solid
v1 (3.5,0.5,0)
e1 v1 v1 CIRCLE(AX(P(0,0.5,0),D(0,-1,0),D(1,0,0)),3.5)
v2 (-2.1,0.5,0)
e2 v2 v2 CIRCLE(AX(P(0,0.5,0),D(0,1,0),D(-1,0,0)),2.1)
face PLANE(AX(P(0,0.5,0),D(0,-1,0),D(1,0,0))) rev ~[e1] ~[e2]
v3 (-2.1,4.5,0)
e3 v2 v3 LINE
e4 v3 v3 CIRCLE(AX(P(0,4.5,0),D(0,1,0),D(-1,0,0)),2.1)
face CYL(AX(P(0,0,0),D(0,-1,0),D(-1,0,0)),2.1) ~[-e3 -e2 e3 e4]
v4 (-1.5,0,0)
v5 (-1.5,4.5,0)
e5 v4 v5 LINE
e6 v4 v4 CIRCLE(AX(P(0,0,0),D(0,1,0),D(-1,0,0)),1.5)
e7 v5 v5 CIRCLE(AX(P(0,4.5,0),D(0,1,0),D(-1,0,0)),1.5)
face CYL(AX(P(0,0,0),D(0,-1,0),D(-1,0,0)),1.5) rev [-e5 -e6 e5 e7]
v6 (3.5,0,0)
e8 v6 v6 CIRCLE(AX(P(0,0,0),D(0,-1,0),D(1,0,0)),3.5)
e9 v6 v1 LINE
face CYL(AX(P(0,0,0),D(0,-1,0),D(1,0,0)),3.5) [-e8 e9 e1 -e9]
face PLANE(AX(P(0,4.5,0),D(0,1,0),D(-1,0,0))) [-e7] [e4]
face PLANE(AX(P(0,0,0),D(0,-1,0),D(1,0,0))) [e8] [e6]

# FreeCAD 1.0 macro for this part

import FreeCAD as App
import Part
import Sketcher
Q = App.Units.Quantity

doc = App.newDocument("Part")
body = doc.addObject("PartDesign::Body", "Body")

sketch1 = body.newObject("Sketcher::SketchObject", "Sketch")
sketch1.AttachmentSupport = (doc.getObject("XZ_Plane"), [""])
sketch1.MapMode = "FlatFace"
sketch1.addGeometry(Part.Circle(App.Vector(0, 0, 0), App.Vector(0, 0, 1), 2.1), False)
sketch1.addGeometry(Part.Circle(App.Vector(0, 0, 0), App.Vector(0, 0, 1), 1.5), False)
sketch1.addConstraint(Sketcher.Constraint("Coincident", 0, 3, -1, 1))
sketch1.addConstraint(Sketcher.Constraint("Coincident", 1, 3, -1, 1))
sketch1.addConstraint(Sketcher.Constraint("Diameter", 1, Q("3 mm")))
sketch1.addConstraint(Sketcher.Constraint("Diameter", 0, Q("4.2 mm")))
pad1 = body.newObject("PartDesign::Pad", "Pad")
pad1.Profile = sketch1
pad1.Length = 4.5
pad1.Reversed = True

sketch2 = body.newObject("Sketcher::SketchObject", "Sketch001")
sketch2.AttachmentSupport = (doc.getObject("XZ_Plane"), [""])
sketch2.MapMode = "FlatFace"
sketch2.addGeometry(Part.Circle(App.Vector(0, 0, 0), App.Vector(0, 0, 1), 3.5), False)
sketch2.addGeometry(Part.Circle(App.Vector(0, 0, 0), App.Vector(0, 0, 1), 2.1), False)
sketch2.addConstraint(Sketcher.Constraint("Coincident", 0, 3, -1, 1))
sketch2.addConstraint(Sketcher.Constraint("Coincident", 1, 3, -1, 1))
sketch2.addConstraint(Sketcher.Constraint("Diameter", 0, Q("7 mm")))
sketch2.addConstraint(Sketcher.Constraint("Diameter", 1, Q("4.2 mm")))
pad2 = body.newObject("PartDesign::Pad", "Pad001")
pad2.Profile = sketch2
pad2.Length = 0.5
pad2.Reversed = True

doc.recompute()
